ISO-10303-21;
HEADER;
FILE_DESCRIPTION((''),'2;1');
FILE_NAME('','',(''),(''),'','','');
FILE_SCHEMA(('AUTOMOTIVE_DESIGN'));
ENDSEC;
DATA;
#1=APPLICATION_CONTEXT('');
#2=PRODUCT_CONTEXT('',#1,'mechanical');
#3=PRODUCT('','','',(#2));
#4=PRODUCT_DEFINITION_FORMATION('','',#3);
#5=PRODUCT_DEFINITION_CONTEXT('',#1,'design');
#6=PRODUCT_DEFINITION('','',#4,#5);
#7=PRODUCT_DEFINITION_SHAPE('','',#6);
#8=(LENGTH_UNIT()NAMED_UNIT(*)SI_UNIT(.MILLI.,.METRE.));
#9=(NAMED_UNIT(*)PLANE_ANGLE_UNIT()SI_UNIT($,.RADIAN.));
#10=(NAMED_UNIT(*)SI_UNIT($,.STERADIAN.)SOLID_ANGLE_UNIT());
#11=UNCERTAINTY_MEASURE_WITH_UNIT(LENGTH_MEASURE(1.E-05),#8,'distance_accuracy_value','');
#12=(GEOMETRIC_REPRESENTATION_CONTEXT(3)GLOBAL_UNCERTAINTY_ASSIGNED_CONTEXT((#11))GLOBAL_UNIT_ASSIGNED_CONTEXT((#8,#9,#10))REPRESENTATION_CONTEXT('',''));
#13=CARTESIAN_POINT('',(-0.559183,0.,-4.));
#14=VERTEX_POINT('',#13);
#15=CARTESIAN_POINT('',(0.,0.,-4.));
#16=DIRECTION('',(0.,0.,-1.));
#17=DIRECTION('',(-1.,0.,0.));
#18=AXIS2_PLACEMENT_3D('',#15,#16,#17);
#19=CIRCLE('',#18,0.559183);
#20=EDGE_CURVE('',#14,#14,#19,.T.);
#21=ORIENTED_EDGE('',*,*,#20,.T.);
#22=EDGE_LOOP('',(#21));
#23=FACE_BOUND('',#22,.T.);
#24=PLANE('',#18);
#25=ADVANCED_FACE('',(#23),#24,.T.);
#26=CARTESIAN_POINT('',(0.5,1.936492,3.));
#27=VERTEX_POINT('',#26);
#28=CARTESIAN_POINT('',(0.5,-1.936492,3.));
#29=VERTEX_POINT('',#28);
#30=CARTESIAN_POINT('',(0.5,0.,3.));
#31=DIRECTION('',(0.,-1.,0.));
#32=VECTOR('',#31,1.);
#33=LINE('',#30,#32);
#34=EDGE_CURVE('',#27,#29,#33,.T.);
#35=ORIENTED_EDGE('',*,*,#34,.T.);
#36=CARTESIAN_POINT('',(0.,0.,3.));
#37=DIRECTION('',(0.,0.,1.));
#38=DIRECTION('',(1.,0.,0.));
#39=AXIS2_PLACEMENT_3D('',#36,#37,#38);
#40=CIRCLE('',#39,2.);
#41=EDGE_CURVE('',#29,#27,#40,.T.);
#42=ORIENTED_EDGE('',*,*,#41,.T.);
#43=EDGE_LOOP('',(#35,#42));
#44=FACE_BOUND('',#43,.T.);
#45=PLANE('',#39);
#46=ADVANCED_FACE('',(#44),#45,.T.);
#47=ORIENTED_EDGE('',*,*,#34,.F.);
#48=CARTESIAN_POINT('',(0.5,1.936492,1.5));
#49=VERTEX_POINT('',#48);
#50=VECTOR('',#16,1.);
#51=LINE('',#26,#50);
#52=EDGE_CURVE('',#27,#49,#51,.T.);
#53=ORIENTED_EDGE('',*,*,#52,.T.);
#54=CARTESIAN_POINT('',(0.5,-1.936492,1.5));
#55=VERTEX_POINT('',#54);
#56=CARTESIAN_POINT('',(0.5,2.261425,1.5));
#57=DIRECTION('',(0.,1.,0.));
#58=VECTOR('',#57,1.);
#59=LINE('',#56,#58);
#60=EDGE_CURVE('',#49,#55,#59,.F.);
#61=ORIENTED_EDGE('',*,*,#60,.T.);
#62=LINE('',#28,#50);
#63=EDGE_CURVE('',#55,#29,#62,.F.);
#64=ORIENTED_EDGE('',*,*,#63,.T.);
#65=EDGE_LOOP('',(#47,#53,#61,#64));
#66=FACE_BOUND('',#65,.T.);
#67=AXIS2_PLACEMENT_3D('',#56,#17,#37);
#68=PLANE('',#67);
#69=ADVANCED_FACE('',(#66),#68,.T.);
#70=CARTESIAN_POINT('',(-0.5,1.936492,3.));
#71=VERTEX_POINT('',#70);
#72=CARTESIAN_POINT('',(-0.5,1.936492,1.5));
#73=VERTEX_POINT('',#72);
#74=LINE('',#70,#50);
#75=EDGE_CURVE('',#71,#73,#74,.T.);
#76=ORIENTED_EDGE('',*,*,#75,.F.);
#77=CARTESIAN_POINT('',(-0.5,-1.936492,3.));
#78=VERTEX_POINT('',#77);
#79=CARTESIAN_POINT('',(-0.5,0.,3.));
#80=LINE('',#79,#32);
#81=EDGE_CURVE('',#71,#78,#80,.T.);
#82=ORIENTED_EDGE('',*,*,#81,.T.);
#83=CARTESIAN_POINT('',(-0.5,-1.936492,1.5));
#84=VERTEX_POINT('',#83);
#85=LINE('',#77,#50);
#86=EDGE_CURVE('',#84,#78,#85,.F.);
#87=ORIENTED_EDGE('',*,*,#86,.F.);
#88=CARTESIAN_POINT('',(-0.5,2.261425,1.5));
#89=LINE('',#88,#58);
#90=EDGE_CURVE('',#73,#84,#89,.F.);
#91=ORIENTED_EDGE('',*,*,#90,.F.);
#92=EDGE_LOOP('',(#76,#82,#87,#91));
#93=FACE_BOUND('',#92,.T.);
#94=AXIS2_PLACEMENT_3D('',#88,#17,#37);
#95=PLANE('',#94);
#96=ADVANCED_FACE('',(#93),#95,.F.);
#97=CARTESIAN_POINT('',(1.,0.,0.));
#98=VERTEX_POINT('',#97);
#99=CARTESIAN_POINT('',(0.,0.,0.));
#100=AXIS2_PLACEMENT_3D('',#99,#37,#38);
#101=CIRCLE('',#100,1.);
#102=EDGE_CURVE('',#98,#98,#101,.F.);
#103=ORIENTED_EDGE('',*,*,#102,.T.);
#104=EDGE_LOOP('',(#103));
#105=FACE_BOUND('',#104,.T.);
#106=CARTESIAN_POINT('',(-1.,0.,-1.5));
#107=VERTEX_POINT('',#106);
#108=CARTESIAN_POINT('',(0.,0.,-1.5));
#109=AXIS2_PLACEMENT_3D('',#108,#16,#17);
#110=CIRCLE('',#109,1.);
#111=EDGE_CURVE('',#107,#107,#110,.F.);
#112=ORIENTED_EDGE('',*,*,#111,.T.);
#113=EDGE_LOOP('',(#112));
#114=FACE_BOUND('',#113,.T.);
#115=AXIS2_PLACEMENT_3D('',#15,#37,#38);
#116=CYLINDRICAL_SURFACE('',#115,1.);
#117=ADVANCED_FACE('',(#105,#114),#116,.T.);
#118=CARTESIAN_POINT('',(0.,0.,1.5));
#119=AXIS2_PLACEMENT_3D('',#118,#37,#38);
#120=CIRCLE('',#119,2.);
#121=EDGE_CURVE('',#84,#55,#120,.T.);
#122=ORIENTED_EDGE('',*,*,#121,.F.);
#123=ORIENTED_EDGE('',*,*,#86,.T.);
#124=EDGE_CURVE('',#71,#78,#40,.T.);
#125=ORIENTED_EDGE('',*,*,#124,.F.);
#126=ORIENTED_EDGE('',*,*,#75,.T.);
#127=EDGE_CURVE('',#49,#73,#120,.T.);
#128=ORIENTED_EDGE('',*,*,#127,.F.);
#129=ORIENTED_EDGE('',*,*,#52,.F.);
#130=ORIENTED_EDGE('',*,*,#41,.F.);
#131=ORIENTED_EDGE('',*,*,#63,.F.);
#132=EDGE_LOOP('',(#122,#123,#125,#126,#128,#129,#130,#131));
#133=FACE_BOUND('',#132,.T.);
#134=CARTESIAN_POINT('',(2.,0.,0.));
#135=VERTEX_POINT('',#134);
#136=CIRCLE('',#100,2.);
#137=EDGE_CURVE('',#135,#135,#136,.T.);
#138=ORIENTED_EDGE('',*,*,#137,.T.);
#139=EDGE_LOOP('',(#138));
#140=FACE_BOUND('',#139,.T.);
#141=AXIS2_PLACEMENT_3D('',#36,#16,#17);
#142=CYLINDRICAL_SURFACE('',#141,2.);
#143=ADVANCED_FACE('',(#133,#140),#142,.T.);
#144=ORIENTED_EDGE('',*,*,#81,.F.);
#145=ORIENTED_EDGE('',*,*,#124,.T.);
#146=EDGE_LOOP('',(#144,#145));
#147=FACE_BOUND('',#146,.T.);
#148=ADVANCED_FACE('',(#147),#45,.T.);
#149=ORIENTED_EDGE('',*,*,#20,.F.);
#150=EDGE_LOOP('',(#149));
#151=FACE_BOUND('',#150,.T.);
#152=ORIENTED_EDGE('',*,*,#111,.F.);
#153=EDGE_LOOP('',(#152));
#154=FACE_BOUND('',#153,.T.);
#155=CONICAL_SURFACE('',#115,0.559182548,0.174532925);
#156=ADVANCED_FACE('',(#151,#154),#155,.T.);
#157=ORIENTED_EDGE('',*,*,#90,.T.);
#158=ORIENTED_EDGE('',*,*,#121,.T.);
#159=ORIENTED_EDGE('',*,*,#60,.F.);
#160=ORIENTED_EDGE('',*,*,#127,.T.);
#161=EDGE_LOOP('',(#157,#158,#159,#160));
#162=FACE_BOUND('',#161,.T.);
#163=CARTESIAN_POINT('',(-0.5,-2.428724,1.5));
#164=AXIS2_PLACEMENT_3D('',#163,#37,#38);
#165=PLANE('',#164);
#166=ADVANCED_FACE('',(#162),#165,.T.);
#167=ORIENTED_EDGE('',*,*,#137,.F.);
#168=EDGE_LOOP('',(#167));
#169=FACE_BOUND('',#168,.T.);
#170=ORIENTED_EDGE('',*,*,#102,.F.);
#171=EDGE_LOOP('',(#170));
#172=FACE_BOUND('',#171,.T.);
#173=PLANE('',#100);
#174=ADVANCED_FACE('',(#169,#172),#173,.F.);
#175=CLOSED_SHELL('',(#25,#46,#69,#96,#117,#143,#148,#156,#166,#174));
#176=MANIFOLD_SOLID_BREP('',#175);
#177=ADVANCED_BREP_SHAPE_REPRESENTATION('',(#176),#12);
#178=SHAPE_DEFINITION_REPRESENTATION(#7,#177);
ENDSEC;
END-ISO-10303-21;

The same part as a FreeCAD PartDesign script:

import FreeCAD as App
import Part
import Sketcher
from FreeCAD import Vector


def edges_at(feature, points):
    """Names of the edges that pass closest to the given points."""
    edges = feature.Shape.Edges
    near = lambda p: min(range(len(edges)), key=lambda i: edges[i].distToShape(Part.Vertex(*p))[0])
    return sorted({f"Edge{near(p) + 1}" for p in points})


def add_polygon(sketch, points):
    """Adds a closed chain of lines whose ends are joined by coincident constraints."""
    first, n = sketch.GeometryCount, len(points)
    for a, b in zip(points, points[1:] + points[:1]):
        sketch.addGeometry(Part.LineSegment(App.Vector(*a, 0), App.Vector(*b, 0)), False)
    for i in range(n):
        sketch.addConstraint(Sketcher.Constraint("Coincident", first + i, 2, first + (i + 1) % n, 1))

doc = App.newDocument("Part")
body = doc.addObject("PartDesign::Body", "Body")

# Sketch on XY plane
sketch1 = doc.addObject("Sketcher::SketchObject", "Sketch")
body.addObject(sketch1)
sketch1.AttachmentSupport = (doc.XY_Plane, [""])
sketch1.MapMode = "FlatFace"
sketch1.addGeometry(Part.Circle(Vector(0, 0, 0), Vector(0, 0, 1), 2), False)
sketch1.addConstraint(Sketcher.Constraint("Coincident", 0, 3, -1, 1))
sketch1.addConstraint(Sketcher.Constraint("Diameter", 0, 4.0))
pad1 = doc.addObject("PartDesign::Pad", "Pad")
body.addObject(pad1)
pad1.Profile = sketch1
pad1.Length = 3

# Sketch on XY plane
sketch2 = doc.addObject("Sketcher::SketchObject", "Sketch001")
body.addObject(sketch2)
sketch2.AttachmentSupport = (doc.XY_Plane, [""])
sketch2.MapMode = "FlatFace"
sketch2.addGeometry(Part.Circle(Vector(0, 0, 0), Vector(0, 0, 1), 1), False)
sketch2.addConstraint(Sketcher.Constraint("Coincident", 0, 3, -1, 1))
sketch2.addConstraint(Sketcher.Constraint("Diameter", 0, 2.0))
pad2 = doc.addObject("PartDesign::Pad", "Pad001")
body.addObject(pad2)
pad2.Profile = sketch2
pad2.Length = 4
pad2.Reversed = True
doc.recompute()

chamfer = doc.addObject("PartDesign::Chamfer", "Chamfer")
body.addObject(chamfer)
chamfer.Base = (pad2, edges_at(pad2, [(-1, 0, -4)]))
chamfer.ChamferType = "Two distances"
chamfer.Size = 2.5
chamfer.Size2 = 0.440817

# Sketch on XY plane
sketch3 = doc.addObject("Sketcher::SketchObject", "Sketch002")
body.addObject(sketch3)
sketch3.AttachmentSupport = (doc.XY_Plane, [""])
sketch3.MapMode = "FlatFace"
sketch3.AttachmentOffset = App.Placement(Vector(0, 0, 3), App.Rotation())
add_polygon(sketch3, [(-0.5, 2.3), (-0.5, -2.4), (0.5, -2.4), (0.5, 2.3)])  # lines 0-3
sketch3.addConstraint(Sketcher.Constraint("Vertical", 0))
sketch3.addConstraint(Sketcher.Constraint("Horizontal", 1))
sketch3.addConstraint(Sketcher.Constraint("Vertical", 2))
sketch3.addConstraint(Sketcher.Constraint("Horizontal", 3))
sketch3.addConstraint(Sketcher.Constraint("DistanceX", 1, 1, 1, 2, 1.0))
sketch3.addConstraint(Sketcher.Constraint("DistanceX", 0, 2, -1, 1, 0.5))
sketch3.addConstraint(Sketcher.Constraint("DistanceY", 0, 2, 0, 1, 4.690149))
sketch3.addConstraint(Sketcher.Constraint("DistanceY", 0, 2, -1, 1, 2.428724))
pocket1 = doc.addObject("PartDesign::Pocket", "Pocket")
body.addObject(pocket1)
pocket1.Profile = sketch3
pocket1.Length = 1.5

doc.recompute()
